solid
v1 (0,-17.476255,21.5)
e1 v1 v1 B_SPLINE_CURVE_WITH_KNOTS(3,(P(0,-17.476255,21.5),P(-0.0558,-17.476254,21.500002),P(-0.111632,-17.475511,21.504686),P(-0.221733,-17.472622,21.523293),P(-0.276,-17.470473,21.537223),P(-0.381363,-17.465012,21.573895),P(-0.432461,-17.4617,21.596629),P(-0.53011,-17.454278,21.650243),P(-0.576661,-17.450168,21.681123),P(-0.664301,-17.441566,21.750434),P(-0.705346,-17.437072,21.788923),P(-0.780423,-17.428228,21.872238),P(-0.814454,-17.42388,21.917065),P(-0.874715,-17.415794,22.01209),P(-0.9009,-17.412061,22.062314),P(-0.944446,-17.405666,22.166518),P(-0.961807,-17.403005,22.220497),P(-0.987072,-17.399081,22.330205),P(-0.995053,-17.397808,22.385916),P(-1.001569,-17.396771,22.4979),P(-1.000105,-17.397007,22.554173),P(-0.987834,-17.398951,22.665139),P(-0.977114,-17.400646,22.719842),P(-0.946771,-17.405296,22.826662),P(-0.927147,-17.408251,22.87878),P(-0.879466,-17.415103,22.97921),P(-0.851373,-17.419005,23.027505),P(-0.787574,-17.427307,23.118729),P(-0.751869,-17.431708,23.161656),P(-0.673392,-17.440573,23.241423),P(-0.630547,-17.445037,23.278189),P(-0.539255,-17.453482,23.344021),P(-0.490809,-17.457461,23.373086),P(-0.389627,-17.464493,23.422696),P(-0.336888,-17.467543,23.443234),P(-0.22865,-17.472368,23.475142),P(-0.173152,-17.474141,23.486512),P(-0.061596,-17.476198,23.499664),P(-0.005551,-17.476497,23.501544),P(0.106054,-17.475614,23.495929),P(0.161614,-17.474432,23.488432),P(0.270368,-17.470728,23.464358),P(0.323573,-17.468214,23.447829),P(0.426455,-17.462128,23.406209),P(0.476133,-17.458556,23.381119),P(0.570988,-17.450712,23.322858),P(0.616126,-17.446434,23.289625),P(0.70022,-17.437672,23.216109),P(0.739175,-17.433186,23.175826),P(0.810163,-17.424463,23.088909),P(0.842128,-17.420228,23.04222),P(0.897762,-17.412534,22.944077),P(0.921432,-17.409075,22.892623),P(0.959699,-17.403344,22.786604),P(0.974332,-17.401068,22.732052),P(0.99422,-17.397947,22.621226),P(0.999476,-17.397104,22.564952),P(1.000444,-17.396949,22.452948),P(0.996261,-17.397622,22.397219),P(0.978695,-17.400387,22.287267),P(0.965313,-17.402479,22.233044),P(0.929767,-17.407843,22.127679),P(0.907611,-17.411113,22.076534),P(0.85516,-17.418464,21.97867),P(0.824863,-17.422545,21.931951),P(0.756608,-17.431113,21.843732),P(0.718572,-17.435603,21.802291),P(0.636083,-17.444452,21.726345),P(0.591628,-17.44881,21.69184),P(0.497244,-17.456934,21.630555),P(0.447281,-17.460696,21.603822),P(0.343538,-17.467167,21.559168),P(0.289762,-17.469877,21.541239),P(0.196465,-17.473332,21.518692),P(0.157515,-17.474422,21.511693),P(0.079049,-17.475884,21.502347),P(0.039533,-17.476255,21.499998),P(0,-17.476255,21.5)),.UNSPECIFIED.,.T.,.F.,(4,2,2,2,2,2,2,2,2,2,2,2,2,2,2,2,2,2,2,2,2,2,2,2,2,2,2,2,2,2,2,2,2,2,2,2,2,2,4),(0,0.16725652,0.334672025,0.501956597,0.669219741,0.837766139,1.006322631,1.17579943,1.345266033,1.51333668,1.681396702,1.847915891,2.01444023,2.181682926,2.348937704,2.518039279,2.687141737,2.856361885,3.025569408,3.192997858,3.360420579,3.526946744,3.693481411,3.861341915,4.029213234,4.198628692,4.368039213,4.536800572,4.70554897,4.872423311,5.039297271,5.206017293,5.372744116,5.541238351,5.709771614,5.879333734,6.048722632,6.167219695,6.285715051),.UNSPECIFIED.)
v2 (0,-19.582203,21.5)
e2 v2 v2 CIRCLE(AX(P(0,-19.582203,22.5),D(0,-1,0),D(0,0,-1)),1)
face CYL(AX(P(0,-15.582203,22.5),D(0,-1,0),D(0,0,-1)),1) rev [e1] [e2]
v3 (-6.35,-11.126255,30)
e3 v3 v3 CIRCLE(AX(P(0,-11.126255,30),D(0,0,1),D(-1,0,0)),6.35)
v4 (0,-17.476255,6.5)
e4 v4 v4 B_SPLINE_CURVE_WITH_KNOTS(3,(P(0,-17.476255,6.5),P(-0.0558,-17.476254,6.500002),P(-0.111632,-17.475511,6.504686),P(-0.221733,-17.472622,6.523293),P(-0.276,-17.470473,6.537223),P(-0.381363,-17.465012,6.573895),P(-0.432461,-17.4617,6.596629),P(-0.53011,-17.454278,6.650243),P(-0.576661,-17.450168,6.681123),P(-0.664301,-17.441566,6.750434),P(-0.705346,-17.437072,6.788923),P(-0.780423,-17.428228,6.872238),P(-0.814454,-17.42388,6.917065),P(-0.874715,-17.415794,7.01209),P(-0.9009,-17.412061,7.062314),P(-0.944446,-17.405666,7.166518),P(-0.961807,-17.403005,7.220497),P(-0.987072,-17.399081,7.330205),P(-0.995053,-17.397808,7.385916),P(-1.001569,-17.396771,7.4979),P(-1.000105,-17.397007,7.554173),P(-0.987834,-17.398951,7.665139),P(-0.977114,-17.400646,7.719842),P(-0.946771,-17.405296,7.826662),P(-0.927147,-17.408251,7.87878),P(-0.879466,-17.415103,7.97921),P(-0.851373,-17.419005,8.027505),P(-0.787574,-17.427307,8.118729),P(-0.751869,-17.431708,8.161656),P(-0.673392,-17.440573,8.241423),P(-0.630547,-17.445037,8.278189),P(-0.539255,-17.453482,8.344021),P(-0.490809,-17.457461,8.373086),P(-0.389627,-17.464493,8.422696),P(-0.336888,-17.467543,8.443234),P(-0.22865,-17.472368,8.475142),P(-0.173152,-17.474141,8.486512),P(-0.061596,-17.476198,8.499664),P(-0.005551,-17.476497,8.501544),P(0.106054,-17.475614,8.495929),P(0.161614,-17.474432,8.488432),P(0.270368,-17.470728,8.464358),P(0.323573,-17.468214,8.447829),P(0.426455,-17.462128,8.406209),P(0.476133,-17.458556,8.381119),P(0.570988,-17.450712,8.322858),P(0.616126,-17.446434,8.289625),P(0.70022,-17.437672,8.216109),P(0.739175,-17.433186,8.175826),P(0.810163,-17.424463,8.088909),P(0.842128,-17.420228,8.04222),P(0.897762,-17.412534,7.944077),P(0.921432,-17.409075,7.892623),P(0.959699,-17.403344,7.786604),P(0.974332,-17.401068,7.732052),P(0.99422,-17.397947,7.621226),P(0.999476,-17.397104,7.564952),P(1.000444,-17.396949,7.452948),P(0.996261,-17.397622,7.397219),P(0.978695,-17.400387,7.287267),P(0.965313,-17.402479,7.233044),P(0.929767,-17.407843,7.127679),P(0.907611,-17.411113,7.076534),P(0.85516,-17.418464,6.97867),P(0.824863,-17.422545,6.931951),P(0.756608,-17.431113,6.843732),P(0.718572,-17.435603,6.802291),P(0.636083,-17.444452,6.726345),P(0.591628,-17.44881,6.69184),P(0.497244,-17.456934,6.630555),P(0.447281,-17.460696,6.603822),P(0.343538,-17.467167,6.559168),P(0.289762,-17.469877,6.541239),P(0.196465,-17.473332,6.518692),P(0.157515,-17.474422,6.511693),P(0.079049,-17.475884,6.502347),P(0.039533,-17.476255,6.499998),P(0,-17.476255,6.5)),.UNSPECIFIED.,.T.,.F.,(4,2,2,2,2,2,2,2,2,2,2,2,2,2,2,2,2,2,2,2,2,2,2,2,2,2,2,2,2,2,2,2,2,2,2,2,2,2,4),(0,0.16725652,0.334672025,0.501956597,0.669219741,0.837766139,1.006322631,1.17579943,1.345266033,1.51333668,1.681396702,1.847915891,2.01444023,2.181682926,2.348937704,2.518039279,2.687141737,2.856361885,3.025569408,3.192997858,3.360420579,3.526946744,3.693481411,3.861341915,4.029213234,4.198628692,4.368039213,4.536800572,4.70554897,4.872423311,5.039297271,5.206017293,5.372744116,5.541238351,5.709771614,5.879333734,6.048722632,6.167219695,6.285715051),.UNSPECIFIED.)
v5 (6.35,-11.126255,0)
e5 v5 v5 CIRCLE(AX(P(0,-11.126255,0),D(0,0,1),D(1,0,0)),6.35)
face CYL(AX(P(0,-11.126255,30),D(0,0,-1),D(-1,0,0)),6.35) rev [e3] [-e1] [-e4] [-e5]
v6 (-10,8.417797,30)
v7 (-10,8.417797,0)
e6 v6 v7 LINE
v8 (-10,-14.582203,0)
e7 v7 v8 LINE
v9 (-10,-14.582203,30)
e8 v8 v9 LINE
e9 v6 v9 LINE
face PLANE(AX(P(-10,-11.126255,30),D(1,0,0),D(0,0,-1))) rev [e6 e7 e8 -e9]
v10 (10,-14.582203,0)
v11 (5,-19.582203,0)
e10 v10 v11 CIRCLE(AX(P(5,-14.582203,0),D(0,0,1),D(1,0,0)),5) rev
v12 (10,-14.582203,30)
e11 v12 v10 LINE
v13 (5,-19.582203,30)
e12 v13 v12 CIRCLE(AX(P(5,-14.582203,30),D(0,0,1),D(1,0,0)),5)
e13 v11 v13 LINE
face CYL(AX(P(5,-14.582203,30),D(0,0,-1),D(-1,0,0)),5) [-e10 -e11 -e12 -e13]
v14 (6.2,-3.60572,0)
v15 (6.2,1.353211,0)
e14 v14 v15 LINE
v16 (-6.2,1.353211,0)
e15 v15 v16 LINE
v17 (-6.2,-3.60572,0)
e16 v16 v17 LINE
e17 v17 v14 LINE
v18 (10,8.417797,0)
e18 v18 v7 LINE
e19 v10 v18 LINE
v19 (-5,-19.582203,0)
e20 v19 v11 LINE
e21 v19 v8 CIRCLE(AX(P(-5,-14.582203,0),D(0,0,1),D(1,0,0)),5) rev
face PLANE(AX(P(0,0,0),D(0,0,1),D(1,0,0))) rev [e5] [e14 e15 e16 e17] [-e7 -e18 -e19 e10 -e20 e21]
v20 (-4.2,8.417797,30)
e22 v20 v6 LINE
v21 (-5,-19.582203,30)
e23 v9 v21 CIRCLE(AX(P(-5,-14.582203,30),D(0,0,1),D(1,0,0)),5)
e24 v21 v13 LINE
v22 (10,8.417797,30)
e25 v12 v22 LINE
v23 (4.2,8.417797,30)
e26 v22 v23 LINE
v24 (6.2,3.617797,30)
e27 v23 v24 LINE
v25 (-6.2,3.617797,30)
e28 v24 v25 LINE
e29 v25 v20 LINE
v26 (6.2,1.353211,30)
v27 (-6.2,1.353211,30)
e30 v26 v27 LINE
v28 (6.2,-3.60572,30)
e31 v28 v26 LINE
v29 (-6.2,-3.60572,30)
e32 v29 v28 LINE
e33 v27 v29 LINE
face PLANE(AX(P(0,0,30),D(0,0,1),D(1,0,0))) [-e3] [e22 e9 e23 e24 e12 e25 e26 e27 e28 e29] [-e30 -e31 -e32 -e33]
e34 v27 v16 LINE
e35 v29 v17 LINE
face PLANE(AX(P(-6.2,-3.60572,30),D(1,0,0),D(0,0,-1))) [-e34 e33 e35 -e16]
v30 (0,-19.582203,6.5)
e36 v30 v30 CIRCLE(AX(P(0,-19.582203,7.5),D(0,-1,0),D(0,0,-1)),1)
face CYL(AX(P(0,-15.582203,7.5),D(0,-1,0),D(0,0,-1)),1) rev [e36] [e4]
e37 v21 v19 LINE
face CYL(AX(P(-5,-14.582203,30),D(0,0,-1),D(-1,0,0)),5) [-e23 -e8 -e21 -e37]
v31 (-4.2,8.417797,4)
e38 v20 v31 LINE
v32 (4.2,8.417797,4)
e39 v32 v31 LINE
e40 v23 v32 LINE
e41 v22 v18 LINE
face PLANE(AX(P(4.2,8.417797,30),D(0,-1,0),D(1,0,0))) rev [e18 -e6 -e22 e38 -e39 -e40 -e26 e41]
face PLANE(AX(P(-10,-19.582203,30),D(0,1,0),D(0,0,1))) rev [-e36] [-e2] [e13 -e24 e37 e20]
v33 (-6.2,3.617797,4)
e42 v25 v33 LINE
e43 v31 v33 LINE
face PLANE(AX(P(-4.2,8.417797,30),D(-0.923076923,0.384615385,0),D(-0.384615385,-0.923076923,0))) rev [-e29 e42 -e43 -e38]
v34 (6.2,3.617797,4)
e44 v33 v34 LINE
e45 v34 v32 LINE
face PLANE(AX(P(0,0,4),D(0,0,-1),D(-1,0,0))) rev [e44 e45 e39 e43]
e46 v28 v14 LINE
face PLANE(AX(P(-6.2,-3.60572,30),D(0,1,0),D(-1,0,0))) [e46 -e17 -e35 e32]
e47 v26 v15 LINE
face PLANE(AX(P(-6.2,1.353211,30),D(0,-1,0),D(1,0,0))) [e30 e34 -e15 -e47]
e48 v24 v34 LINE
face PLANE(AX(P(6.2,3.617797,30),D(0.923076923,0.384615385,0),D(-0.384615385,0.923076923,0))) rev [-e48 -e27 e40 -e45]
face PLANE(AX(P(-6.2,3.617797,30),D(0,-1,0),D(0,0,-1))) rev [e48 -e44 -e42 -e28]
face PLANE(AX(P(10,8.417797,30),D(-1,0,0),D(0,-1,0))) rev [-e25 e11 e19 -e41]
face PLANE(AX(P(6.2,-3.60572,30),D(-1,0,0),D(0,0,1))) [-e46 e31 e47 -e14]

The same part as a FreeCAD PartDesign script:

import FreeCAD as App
import Part
import Sketcher


def edges_at(feature, points):
    """Names of the edges that pass closest to the given points."""
    edges = feature.Shape.Edges
    near = lambda p: min(range(len(edges)), key=lambda i: edges[i].distToShape(Part.Vertex(*p))[0])
    return sorted({f"Edge{near(p) + 1}" for p in points})

doc = App.newDocument("Part")
params = doc.addObject("Spreadsheet::Sheet", "Params")
for row, (alias, value) in enumerate([
    ("sketch1_diameter", "12.7 mm"),
    ("sketch1_width", "20 mm"),
    ("sketch1_height", "28 mm"),
    ("sketch1_width2", "12.4 mm"),
    ("sketch1_width3", "5.8 mm"),
    ("pad1_length", "30 mm"),
    ("sketch2_width", "8.4 mm"),
    ("sketch2_width2", "12.4 mm"),
    ("sketch2_length", "5.2 mm"),
    ("pad2_length", "4 mm"),
    ("fillet_radius", "5 mm"),
    ("sketch3_diameter", "2 mm"),
    ("pocket1_length", "4 mm"),
], start=1):
    params.set(f"A{row}", alias)
    params.set(f"B{row}", "=" + value)
    params.setAlias(f"B{row}", alias)

body = doc.addObject("PartDesign::Body", "Body")

sketch1 = body.newObject("Sketcher::SketchObject", "Sketch")
sketch1.AttachmentSupport = (doc.getObject("XY_Plane"), [""])
sketch1.MapMode = "FlatFace"
sketch1.addGeometry([
    Part.LineSegment(App.Vector(6.2, 3.6, 0), App.Vector(-6.2, 3.6, 0)),
    Part.LineSegment(App.Vector(-6.2, 3.6, 0), App.Vector(-4.2, 8.4, 0)),
    Part.LineSegment(App.Vector(-4.2, 8.4, 0), App.Vector(-10, 8.4, 0)),
    Part.LineSegment(App.Vector(-10, 8.4, 0), App.Vector(-10, -19.6, 0)),
    Part.LineSegment(App.Vector(-10, -19.6, 0), App.Vector(10, -19.6, 0)),
    Part.LineSegment(App.Vector(10, -19.6, 0), App.Vector(10, 8.4, 0)),
    Part.LineSegment(App.Vector(10, 8.4, 0), App.Vector(4.2, 8.4, 0)),
    Part.LineSegment(App.Vector(4.2, 8.4, 0), App.Vector(6.2, 3.6, 0)),
    Part.LineSegment(App.Vector(6.2, -3.6, 0), App.Vector(-6.2, -3.6, 0)),
    Part.LineSegment(App.Vector(-6.2, -3.6, 0), App.Vector(-6.2, 1.4, 0)),
    Part.LineSegment(App.Vector(-6.2, 1.4, 0), App.Vector(6.2, 1.4, 0)),
    Part.LineSegment(App.Vector(6.2, 1.4, 0), App.Vector(6.2, -3.6, 0)),
    Part.Circle(App.Vector(0, -11.1, 0), App.Vector(0, 0, 1), 6.3),
], False)
sketch1.addConstraint([
    Sketcher.Constraint("Coincident", 0, 2, 1, 1),
    Sketcher.Constraint("Coincident", 1, 2, 2, 1),
    Sketcher.Constraint("Coincident", 2, 2, 3, 1),
    Sketcher.Constraint("Coincident", 3, 2, 4, 1),
    Sketcher.Constraint("Coincident", 4, 2, 5, 1),
    Sketcher.Constraint("Coincident", 5, 2, 6, 1),
    Sketcher.Constraint("Coincident", 6, 2, 7, 1),
    Sketcher.Constraint("Coincident", 7, 2, 0, 1),
    Sketcher.Constraint("Coincident", 8, 2, 9, 1),
    Sketcher.Constraint("Coincident", 9, 2, 10, 1),
    Sketcher.Constraint("Coincident", 10, 2, 11, 1),
    Sketcher.Constraint("Coincident", 11, 2, 8, 1),
    Sketcher.Constraint("Horizontal", 0),
    Sketcher.Constraint("Horizontal", 2),
    Sketcher.Constraint("Vertical", 3),
    Sketcher.Constraint("Horizontal", 4),
    Sketcher.Constraint("Vertical", 5),
    Sketcher.Constraint("Horizontal", 6),
    Sketcher.Constraint("Horizontal", 8),
    Sketcher.Constraint("Vertical", 9),
    Sketcher.Constraint("Horizontal", 10),
    Sketcher.Constraint("Vertical", 11),
    Sketcher.Constraint("Symmetric", 2, 2, 5, 2, -2),
    Sketcher.Constraint("PointOnObject", 12, 3, -2),
    Sketcher.Constraint("Vertical", 0, 2, 8, 2),
    Sketcher.Constraint("Vertical", 7, 2, 10, 2),
    Sketcher.Constraint("Equal", 2, 6),
    Sketcher.Constraint("Equal", 1, 7),
    Sketcher.Constraint("Diameter", 12, 12.7),
    Sketcher.Constraint("DistanceX", 4, 1, 4, 2, 20.0),
    Sketcher.Constraint("DistanceY", 3, 2, 3, 1, 28.0),
    Sketcher.Constraint("DistanceX", 0, 2, 0, 1, 12.4),
    Sketcher.Constraint("DistanceX", 2, 2, 2, 1, 5.8),
    Sketcher.Constraint("Distance", 1, 5.2),
    Sketcher.Constraint("DistanceY", 9, 1, 9, 2, 4.958931),
    Sketcher.Constraint("DistanceY", 8, 2, -1, 1, 3.60572),
    Sketcher.Constraint("DistanceY", 12, 3, 0, 2, 14.744052),
    Sketcher.Constraint("DistanceY", 12, 3, -1, 1, 11.126255),
])
sketch1.setExpression("Constraints[28]", "Params.sketch1_diameter")
sketch1.setExpression("Constraints[29]", "Params.sketch1_width")
sketch1.setExpression("Constraints[30]", "Params.sketch1_height")
sketch1.setExpression("Constraints[31]", "Params.sketch1_width2")
sketch1.setExpression("Constraints[32]", "Params.sketch1_width3")
pad1 = body.newObject("PartDesign::Pad", "Pad")
pad1.Profile = sketch1
pad1.setExpression("Length", "Params.pad1_length")

sketch2 = body.newObject("Sketcher::SketchObject", "Sketch001")
sketch2.AttachmentSupport = (doc.getObject("XY_Plane"), [""])
sketch2.MapMode = "FlatFace"
sketch2.addGeometry([
    Part.LineSegment(App.Vector(6, 4, 0), App.Vector(4, 8, 0)),
    Part.LineSegment(App.Vector(4, 8, 0), App.Vector(-4, 8, 0)),
    Part.LineSegment(App.Vector(-4, 8, 0), App.Vector(-6, 4, 0)),
    Part.LineSegment(App.Vector(-6, 4, 0), App.Vector(6, 4, 0)),
], False)
sketch2.addConstraint([
    Sketcher.Constraint("Coincident", 0, 2, 1, 1),
    Sketcher.Constraint("Coincident", 1, 2, 2, 1),
    Sketcher.Constraint("Coincident", 2, 2, 3, 1),
    Sketcher.Constraint("Coincident", 3, 2, 0, 1),
    Sketcher.Constraint("Horizontal", 1),
    Sketcher.Constraint("Horizontal", 3),
    Sketcher.Constraint("Equal", 0, 2),
    Sketcher.Constraint("DistanceX", 1, 2, 1, 1, 8.4),
    Sketcher.Constraint("DistanceX", 3, 1, 3, 2, 12.4),
    Sketcher.Constraint("Distance", 0, 5.2),
    Sketcher.Constraint("DistanceX", -1, 1, 0, 2, 4.2),
    Sketcher.Constraint("DistanceY", -1, 1, 0, 2, 8.417797),
])
sketch2.setExpression("Constraints[7]", "Params.sketch2_width")
sketch2.setExpression("Constraints[8]", "Params.sketch2_width2")
sketch2.setExpression("Constraints[9]", "Params.sketch2_length")
pad2 = body.newObject("PartDesign::Pad", "Pad001")
pad2.Profile = sketch2
pad2.setExpression("Length", "Params.pad2_length")
doc.recompute()

fillet = body.newObject("PartDesign::Fillet", "Fillet")
fillet.Base = (pad2, edges_at(pad2, [(10, -19.582, 15), (-10, -19.582, 15)]))
fillet.setExpression("Radius", "Params.fillet_radius")

sketch3 = body.newObject("Sketcher::SketchObject", "Sketch002")
sketch3.AttachmentSupport = (doc.getObject("XZ_Plane"), [""])
sketch3.MapMode = "FlatFace"
sketch3.AttachmentOffset = App.Placement(App.Vector(0, 0, 19.582203), App.Rotation())
sketch3.addGeometry([
    Part.Circle(App.Vector(0, 22.5, 0), App.Vector(0, 0, 1), 1),
    Part.Circle(App.Vector(0, 7.5, 0), App.Vector(0, 0, 1), 1),
], False)
sketch3.addConstraint([
    Sketcher.Constraint("Equal", 0, 1),
    Sketcher.Constraint("PointOnObject", 0, 3, -2),
    Sketcher.Constraint("PointOnObject", 1, 3, -2),
    Sketcher.Constraint("Diameter", 0, 2.0),
    Sketcher.Constraint("DistanceY", 1, 3, 0, 3, 15.0),
    Sketcher.Constraint("DistanceY", -1, 1, 0, 3, 22.5),
])
sketch3.setExpression("Constraints[3]", "Params.sketch3_diameter")
pocket1 = body.newObject("PartDesign::Pocket", "Pocket")
pocket1.Profile = sketch3
pocket1.setExpression("Length", "Params.pocket1_length")

doc.recompute()
